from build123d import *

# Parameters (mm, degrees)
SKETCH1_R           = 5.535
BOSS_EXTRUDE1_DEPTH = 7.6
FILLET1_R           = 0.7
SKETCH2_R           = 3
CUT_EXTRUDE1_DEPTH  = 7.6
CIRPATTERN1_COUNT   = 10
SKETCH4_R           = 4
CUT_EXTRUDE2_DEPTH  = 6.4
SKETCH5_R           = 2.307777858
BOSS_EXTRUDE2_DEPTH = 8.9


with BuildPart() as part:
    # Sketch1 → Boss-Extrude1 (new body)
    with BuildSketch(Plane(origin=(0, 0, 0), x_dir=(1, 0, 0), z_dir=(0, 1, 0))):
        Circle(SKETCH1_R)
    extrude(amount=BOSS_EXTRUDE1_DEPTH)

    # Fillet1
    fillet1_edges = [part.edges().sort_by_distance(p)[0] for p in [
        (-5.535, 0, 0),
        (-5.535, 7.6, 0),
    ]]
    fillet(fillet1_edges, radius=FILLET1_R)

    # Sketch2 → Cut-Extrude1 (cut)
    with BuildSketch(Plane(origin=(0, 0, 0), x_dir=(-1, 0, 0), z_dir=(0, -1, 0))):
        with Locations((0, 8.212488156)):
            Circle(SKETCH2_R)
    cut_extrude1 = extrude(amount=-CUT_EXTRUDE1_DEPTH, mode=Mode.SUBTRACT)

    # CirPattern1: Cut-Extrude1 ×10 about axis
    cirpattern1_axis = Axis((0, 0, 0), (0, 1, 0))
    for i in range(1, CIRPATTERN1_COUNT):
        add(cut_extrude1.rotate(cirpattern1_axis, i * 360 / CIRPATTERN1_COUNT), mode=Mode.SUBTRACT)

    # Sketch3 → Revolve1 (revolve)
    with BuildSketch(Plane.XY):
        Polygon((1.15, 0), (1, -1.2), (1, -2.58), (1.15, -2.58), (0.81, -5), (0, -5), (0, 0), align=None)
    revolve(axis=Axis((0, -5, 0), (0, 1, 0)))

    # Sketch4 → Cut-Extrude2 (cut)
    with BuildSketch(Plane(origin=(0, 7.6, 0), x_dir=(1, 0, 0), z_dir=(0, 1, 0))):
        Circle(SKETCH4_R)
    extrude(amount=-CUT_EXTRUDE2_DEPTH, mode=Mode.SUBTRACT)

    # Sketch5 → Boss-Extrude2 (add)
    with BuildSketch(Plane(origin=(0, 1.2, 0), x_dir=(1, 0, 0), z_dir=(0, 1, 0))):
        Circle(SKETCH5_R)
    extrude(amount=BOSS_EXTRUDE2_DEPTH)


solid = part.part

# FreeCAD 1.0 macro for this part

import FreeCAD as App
import Part
import Sketcher
from FreeCAD import Vector


def edges_at(feature, points):
    """Names of the edges that pass closest to the given points."""
    edges = feature.Shape.Edges
    near = lambda p: min(range(len(edges)), key=lambda i: edges[i].distToShape(Part.Vertex(*p))[0])
    return sorted({f"Edge{near(p) + 1}" for p in points})

doc = App.newDocument("Part")
body = doc.addObject("PartDesign::Body", "Body")

# Sketch on XZ plane
sketch1 = body.newObject("Sketcher::SketchObject", "Sketch")
sketch1.AttachmentSupport = (doc.getObject("XZ_Plane"), [""])
sketch1.MapMode = "FlatFace"
sketch1.addGeometry(Part.Circle(Vector(0, 0, 0), Vector(0, 0, 1), 5.535), False)
sketch1.addConstraint([
    Sketcher.Constraint("Coincident", 0, 3, -1, 1),
    Sketcher.Constraint("Diameter", 0, 11.07),
])
pad1 = body.newObject("PartDesign::Pad", "Pad")
pad1.Profile = sketch1
pad1.Length = 7.6
pad1.Reversed = True
doc.recompute()

fillet = body.newObject("PartDesign::Fillet", "Fillet")
fillet.Base = (pad1, edges_at(pad1, [(-5.535, 0, 0), (-5.535, 7.6, 0)]))
fillet.Radius = 0.7

# Sketch on XZ plane
sketch2 = body.newObject("Sketcher::SketchObject", "Sketch001")
sketch2.AttachmentSupport = (doc.getObject("XZ_Plane"), [""])
sketch2.MapMode = "FlatFace"
sketch2.addGeometry(Part.Circle(Vector(0, -8.212488, 0), Vector(0, 0, 1), 3), False)
sketch2.addConstraint([
    Sketcher.Constraint("PointOnObject", 0, 3, -2),
    Sketcher.Constraint("Diameter", 0, 6.0),
    Sketcher.Constraint("DistanceY", 0, 3, -1, 1, 8.212488),
])
pocket1 = body.newObject("PartDesign::Pocket", "Pocket")
pocket1.Profile = sketch2
pocket1.Length = 7.6
doc.recompute()

polarpattern = body.newObject("PartDesign::PolarPattern", "PolarPattern")
polarpattern.Originals = [pocket1]
polarpattern.Axis = (doc.getObject("Y_Axis"), [""])
polarpattern.Angle = 360
polarpattern.Occurrences = 10
body.Tip = polarpattern

# Sketch on XY plane
sketch3 = body.newObject("Sketcher::SketchObject", "Sketch002")
sketch3.AttachmentSupport = (doc.getObject("XY_Plane"), [""])
sketch3.MapMode = "FlatFace"
sketch3.addGeometry([
    Part.LineSegment(Vector(1, -1.2, 0), Vector(1.15, 0, 0)),  # 0
    Part.LineSegment(Vector(1.15, 0, 0), Vector(0, 0, 0)),  # 1
    Part.LineSegment(Vector(0, 0, 0), Vector(0, -5, 0)),  # 2
    Part.LineSegment(Vector(0, -5, 0), Vector(0.81, -5, 0)),  # 3
    Part.LineSegment(Vector(0.81, -5, 0), Vector(1.15, -2.58, 0)),  # 4
    Part.LineSegment(Vector(1.15, -2.58, 0), Vector(1, -2.58, 0)),  # 5
    Part.LineSegment(Vector(1, -2.58, 0), Vector(1, -1.2, 0)),  # 6
], False)
sketch3.addConstraint([
    Sketcher.Constraint("Coincident", 0, 2, 1, 1),
    Sketcher.Constraint("Coincident", 1, 2, 2, 1),
    Sketcher.Constraint("Coincident", 2, 2, 3, 1),
    Sketcher.Constraint("Coincident", 3, 2, 4, 1),
    Sketcher.Constraint("Coincident", 4, 2, 5, 1),
    Sketcher.Constraint("Coincident", 5, 2, 6, 1),
    Sketcher.Constraint("Coincident", 6, 2, 0, 1),
    Sketcher.Constraint("Horizontal", 1),
    Sketcher.Constraint("Vertical", 2),
    Sketcher.Constraint("Horizontal", 3),
    Sketcher.Constraint("Horizontal", 5),
    Sketcher.Constraint("Vertical", 6),
    Sketcher.Constraint("Coincident", 1, 2, -1, 1),
    Sketcher.Constraint("Vertical", 0, 2, 4, 2),
    Sketcher.Constraint("DistanceY", 2, 2, 2, 1, 5.0),
    Sketcher.Constraint("DistanceX", -1, 1, 5, 2, 1.0),
    Sketcher.Constraint("DistanceX", 1, 2, 1, 1, 1.15),
    Sketcher.Constraint("DistanceX", 3, 1, 3, 2, 0.81),
    Sketcher.Constraint("DistanceY", 6, 1, 6, 2, 1.38),
    Sketcher.Constraint("DistanceY", 6, 2, -1, 1, 1.2),
])
revolution = body.newObject("PartDesign::Revolution", "Revolution")
revolution.Profile = sketch3
revolution.ReferenceAxis = (sketch3, ["V_Axis"])
revolution.Angle = 360

# Sketch on XZ plane
sketch4 = body.newObject("Sketcher::SketchObject", "Sketch003")
sketch4.AttachmentSupport = (doc.getObject("XZ_Plane"), [""])
sketch4.MapMode = "FlatFace"
sketch4.AttachmentOffset = App.Placement(Vector(0, 0, -7.6), App.Rotation())
sketch4.addGeometry(Part.Circle(Vector(0, 0, 0), Vector(0, 0, 1), 4), False)
sketch4.addConstraint([
    Sketcher.Constraint("Coincident", 0, 3, -1, 1),
    Sketcher.Constraint("Diameter", 0, 8.0),
])
pocket2 = body.newObject("PartDesign::Pocket", "Pocket001")
pocket2.Profile = sketch4
pocket2.Length = 6.4
pocket2.Reversed = True

# Sketch on XZ plane
sketch5 = body.newObject("Sketcher::SketchObject", "Sketch004")
sketch5.AttachmentSupport = (doc.getObject("XZ_Plane"), [""])
sketch5.MapMode = "FlatFace"
sketch5.AttachmentOffset = App.Placement(Vector(0, 0, -1.2), App.Rotation())
sketch5.addGeometry(Part.Circle(Vector(0, 0, 0), Vector(0, 0, 1), 2.307778), False)
sketch5.addConstraint([
    Sketcher.Constraint("Coincident", 0, 3, -1, 1),
    Sketcher.Constraint("Diameter", 0, 4.615556),
])
pad2 = body.newObject("PartDesign::Pad", "Pad001")
pad2.Profile = sketch5
pad2.Length = 8.9
pad2.Reversed = True

doc.recompute()
